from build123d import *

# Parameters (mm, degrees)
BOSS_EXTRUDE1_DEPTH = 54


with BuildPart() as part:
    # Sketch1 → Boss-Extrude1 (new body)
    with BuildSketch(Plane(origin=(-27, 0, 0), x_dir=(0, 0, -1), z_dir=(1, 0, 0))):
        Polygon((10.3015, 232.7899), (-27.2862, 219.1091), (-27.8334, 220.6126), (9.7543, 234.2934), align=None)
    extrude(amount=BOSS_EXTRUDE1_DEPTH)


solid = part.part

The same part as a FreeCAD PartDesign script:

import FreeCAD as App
import Part
import Sketcher

V = App.Vector
Q = App.Units.Quantity

doc = App.newDocument("Part")
body = doc.addObject("PartDesign::Body", "Body")

# Sketch on YZ plane
sketch1 = body.newObject("Sketcher::SketchObject", "Sketch")
sketch1.AttachmentSupport = (doc.getObject("YZ_Plane"), [""])
sketch1.MapMode = "FlatFace"
sketch1.AttachmentOffset = App.Placement(V(0, 0, -27), App.Rotation())
sketch1.addGeometry([
    Part.LineSegment(V(219.1091, 27.2862, 0), V(232.7899, -10.3015, 0)),
    Part.LineSegment(V(232.7899, -10.3015, 0), V(234.2934, -9.7543, 0)),
    Part.LineSegment(V(234.2934, -9.7543, 0), V(220.6126, 27.8334, 0)),
    Part.LineSegment(V(220.6126, 27.8334, 0), V(219.1091, 27.2862, 0)),
], False)
sketch1.addConstraint([
    Sketcher.Constraint("Coincident", 0, 2, 1, 1),
    Sketcher.Constraint("Coincident", 1, 2, 2, 1),
    Sketcher.Constraint("Coincident", 2, 2, 3, 1),
    Sketcher.Constraint("Coincident", 3, 2, 0, 1),
    Sketcher.Constraint("Parallel", 0, 2),
    Sketcher.Constraint("Parallel", 1, 3),
    Sketcher.Constraint("Angle", 0, Q("-70.000005 deg")),
    Sketcher.Constraint("DistanceX", -1, 1, 0, 2, 232.7899),
    Sketcher.Constraint("DistanceY", 0, 2, -1, 1, 10.3015),
    Sketcher.Constraint("DistanceX", -1, 1, 1, 2, 234.2934),
    Sketcher.Constraint("DistanceY", 1, 2, -1, 1, 9.7543),
    Sketcher.Constraint("DistanceX", -1, 1, 2, 2, 220.6126),
])
pad1 = body.newObject("PartDesign::Pad", "Pad")
pad1.Profile = sketch1
pad1.Length = 54

doc.recompute()
